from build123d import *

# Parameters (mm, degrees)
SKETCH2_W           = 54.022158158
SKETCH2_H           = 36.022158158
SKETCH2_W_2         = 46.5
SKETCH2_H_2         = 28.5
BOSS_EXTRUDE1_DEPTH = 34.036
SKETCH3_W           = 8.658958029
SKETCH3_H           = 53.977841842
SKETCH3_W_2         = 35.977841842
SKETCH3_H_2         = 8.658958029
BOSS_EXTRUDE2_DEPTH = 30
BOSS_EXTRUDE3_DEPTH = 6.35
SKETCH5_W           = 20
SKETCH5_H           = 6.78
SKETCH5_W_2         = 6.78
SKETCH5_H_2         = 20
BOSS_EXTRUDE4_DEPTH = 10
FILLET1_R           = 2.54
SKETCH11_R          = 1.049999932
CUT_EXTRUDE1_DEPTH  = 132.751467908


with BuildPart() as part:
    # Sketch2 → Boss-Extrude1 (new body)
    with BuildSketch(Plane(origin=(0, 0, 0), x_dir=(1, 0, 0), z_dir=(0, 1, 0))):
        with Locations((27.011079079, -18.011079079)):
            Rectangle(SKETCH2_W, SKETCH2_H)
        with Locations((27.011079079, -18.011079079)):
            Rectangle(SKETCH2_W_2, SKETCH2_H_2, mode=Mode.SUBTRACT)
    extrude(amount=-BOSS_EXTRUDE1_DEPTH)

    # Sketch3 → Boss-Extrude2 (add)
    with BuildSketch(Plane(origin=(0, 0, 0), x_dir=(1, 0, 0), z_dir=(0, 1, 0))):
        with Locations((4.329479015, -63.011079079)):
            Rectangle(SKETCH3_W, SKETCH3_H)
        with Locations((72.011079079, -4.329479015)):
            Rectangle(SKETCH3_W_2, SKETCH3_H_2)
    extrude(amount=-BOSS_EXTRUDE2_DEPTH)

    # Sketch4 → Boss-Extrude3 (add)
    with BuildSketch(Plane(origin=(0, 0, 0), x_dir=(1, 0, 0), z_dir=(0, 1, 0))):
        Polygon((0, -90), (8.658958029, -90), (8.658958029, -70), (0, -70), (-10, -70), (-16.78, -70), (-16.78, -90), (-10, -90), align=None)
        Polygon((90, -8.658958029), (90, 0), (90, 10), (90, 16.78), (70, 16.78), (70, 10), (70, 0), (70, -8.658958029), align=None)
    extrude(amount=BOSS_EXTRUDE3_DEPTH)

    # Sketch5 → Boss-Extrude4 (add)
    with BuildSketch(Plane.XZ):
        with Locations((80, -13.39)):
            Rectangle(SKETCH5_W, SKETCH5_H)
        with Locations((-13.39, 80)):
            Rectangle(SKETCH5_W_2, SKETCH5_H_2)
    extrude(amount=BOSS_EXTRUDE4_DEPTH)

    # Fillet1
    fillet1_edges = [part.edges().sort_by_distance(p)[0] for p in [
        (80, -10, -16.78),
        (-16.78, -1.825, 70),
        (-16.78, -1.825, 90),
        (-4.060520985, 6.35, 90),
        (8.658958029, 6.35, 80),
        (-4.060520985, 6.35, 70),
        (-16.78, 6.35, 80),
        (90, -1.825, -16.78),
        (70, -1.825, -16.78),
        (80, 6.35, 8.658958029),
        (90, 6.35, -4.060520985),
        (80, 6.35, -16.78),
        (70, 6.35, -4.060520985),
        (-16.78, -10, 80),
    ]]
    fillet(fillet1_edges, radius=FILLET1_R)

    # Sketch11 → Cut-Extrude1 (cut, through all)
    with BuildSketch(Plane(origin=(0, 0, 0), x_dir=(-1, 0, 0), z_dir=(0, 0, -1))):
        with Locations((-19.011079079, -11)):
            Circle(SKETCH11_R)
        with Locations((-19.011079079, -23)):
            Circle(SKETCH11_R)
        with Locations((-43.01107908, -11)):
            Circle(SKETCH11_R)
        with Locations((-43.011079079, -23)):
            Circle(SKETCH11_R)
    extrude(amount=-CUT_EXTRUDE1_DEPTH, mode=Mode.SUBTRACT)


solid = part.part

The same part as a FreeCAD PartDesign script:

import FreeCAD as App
import Part
import Sketcher
Q = App.Units.Quantity


def edges_at(feature, points):
    """Names of the edges that pass closest to the given points."""
    edges = feature.Shape.Edges
    near = lambda p: min(range(len(edges)), key=lambda i: edges[i].distToShape(Part.Vertex(*p))[0])
    return sorted({f"Edge{near(p) + 1}" for p in points})


def add_polygon(sketch, points):
    """Adds a closed chain of lines whose ends are joined by coincident constraints."""
    first, n = sketch.GeometryCount, len(points)
    for a, b in zip(points, points[1:] + points[:1]):
        sketch.addGeometry(Part.LineSegment(App.Vector(*a, 0), App.Vector(*b, 0)), False)
    for i in range(n):
        sketch.addConstraint(Sketcher.Constraint("Coincident", first + i, 2, first + (i + 1) % n, 1))

doc = App.newDocument("Part")
body = doc.addObject("PartDesign::Body", "Body")

sketch1 = doc.addObject("Sketcher::SketchObject", "Sketch")
body.addObject(sketch1)
sketch1.AttachmentSupport = (doc.XZ_Plane, [""])
sketch1.MapMode = "FlatFace"
add_polygon(sketch1, [(0, 0), (0, 36), (54, 36), (54, 0)])
add_polygon(sketch1, [(50, 32), (4, 32), (4, 4), (50, 4)])
sketch1.addConstraint([
    Sketcher.Constraint("Vertical", 0),
    Sketcher.Constraint("Horizontal", 1),
    Sketcher.Constraint("Vertical", 2),
    Sketcher.Constraint("Horizontal", 3),
    Sketcher.Constraint("Horizontal", 4),
    Sketcher.Constraint("Vertical", 5),
    Sketcher.Constraint("Horizontal", 6),
    Sketcher.Constraint("Vertical", 7),
    Sketcher.Constraint("Coincident", 3, 2, -1, 1),
    Sketcher.Constraint("DistanceX", 4, 2, 4, 1, Q("46.5 mm")),
    Sketcher.Constraint("DistanceY", 5, 2, 5, 1, Q("28.5 mm")),
    Sketcher.Constraint("DistanceX", 1, 1, 1, 2, Q("54.022158 mm")),
    Sketcher.Constraint("DistanceY", 0, 1, 0, 2, Q("36.022158 mm")),
    Sketcher.Constraint("DistanceX", -1, 1, 4, 2, Q("3.761079 mm")),
    Sketcher.Constraint("DistanceY", -1, 1, 4, 2, Q("32.261079 mm")),
])
pad1 = doc.addObject("PartDesign::Pad", "Pad")
body.addObject(pad1)
pad1.Profile = sketch1
pad1.Length = 34.036

sketch2 = doc.addObject("Sketcher::SketchObject", "Sketch001")
body.addObject(sketch2)
sketch2.AttachmentSupport = (doc.XZ_Plane, [""])
sketch2.MapMode = "FlatFace"
add_polygon(sketch2, [(0, 36), (0, 90), (9, 90), (9, 36)])
add_polygon(sketch2, [(54, 0), (54, 9), (90, 9), (90, 0)])
sketch2.addConstraint([
    Sketcher.Constraint("Vertical", 0),
    Sketcher.Constraint("Horizontal", 1),
    Sketcher.Constraint("Vertical", 2),
    Sketcher.Constraint("Horizontal", 3),
    Sketcher.Constraint("Vertical", 4),
    Sketcher.Constraint("Horizontal", 5),
    Sketcher.Constraint("Vertical", 6),
    Sketcher.Constraint("Horizontal", 7),
    Sketcher.Constraint("PointOnObject", 0, 2, -2),
    Sketcher.Constraint("PointOnObject", 6, 2, -1),
    Sketcher.Constraint("Equal", 3, 4),
    Sketcher.Constraint("DistanceY", -1, 1, 0, 2, Q("90 mm")),
    Sketcher.Constraint("DistanceX", -1, 1, 5, 2, Q("90 mm")),
    Sketcher.Constraint("DistanceX", 1, 1, 1, 2, Q("8.658958 mm")),
    Sketcher.Constraint("DistanceX", 5, 1, 5, 2, Q("35.977842 mm")),
    Sketcher.Constraint("DistanceY", 0, 1, 0, 2, Q("53.977842 mm")),
])
pad2 = doc.addObject("PartDesign::Pad", "Pad001")
body.addObject(pad2)
pad2.Profile = sketch2
pad2.Length = 30

sketch3 = doc.addObject("Sketcher::SketchObject", "Sketch002")
body.addObject(sketch3)
sketch3.AttachmentSupport = (doc.XZ_Plane, [""])
sketch3.MapMode = "FlatFace"
add_polygon(sketch3, [(9, 90), (9, 70), (-17, 70), (-17, 90)])
add_polygon(sketch3, [(90, 9), (90, -17), (70, -17), (70, 9)])
sketch3.addConstraint([
    Sketcher.Constraint("Vertical", 0),
    Sketcher.Constraint("Horizontal", 1),
    Sketcher.Constraint("Vertical", 2),
    Sketcher.Constraint("Horizontal", 3),
    Sketcher.Constraint("Vertical", 4),
    Sketcher.Constraint("Horizontal", 5),
    Sketcher.Constraint("Vertical", 6),
    Sketcher.Constraint("Horizontal", 7),
    Sketcher.Constraint("Equal", 7, 0),
    Sketcher.Constraint("Equal", 3, 4),
    Sketcher.Constraint("DistanceX", 5, 2, 5, 1, Q("20 mm")),
    Sketcher.Constraint("DistanceY", -1, 1, 0, 2, Q("70 mm")),
    Sketcher.Constraint("DistanceX", -1, 1, 4, 2, Q("90 mm")),
    Sketcher.Constraint("DistanceX", 1, 2, -1, 1, Q("16.78 mm")),
    Sketcher.Constraint("DistanceY", 4, 2, -1, 1, Q("16.78 mm")),
    Sketcher.Constraint("DistanceX", 1, 2, 1, 1, Q("25.438958 mm")),
])
pad3 = doc.addObject("PartDesign::Pad", "Pad002")
body.addObject(pad3)
pad3.Profile = sketch3
pad3.Length = 6.35
pad3.Reversed = True

sketch4 = doc.addObject("Sketcher::SketchObject", "Sketch003")
body.addObject(sketch4)
sketch4.AttachmentSupport = (doc.XZ_Plane, [""])
sketch4.MapMode = "FlatFace"
add_polygon(sketch4, [(70, -10), (70, -17), (90, -17), (90, -10)])
add_polygon(sketch4, [(-17, 90), (-17, 70), (-10, 70), (-10, 90)])
sketch4.addConstraint([
    Sketcher.Constraint("Vertical", 0),
    Sketcher.Constraint("Horizontal", 1),
    Sketcher.Constraint("Vertical", 2),
    Sketcher.Constraint("Horizontal", 3),
    Sketcher.Constraint("Vertical", 4),
    Sketcher.Constraint("Horizontal", 5),
    Sketcher.Constraint("Vertical", 6),
    Sketcher.Constraint("Horizontal", 7),
    Sketcher.Constraint("Equal", 7, 0),
    Sketcher.Constraint("Equal", 3, 4),
    Sketcher.Constraint("DistanceX", 1, 1, 1, 2, Q("20 mm")),
    Sketcher.Constraint("DistanceX", -1, 1, 0, 2, Q("70 mm")),
    Sketcher.Constraint("DistanceY", 2, 2, -1, 1, Q("10 mm")),
    Sketcher.Constraint("DistanceY", -1, 1, 4, 2, Q("70 mm")),
    Sketcher.Constraint("DistanceX", 5, 2, -1, 1, Q("10 mm")),
    Sketcher.Constraint("DistanceX", 5, 1, 5, 2, Q("6.78 mm")),
])
pad4 = doc.addObject("PartDesign::Pad", "Pad003")
body.addObject(pad4)
pad4.Profile = sketch4
pad4.Length = 10
doc.recompute()

fillet = doc.addObject("PartDesign::Fillet", "Fillet")
body.addObject(fillet)
fillet.Base = (pad4, edges_at(pad4, [
    (80, -10, -16.78),
    (-16.78, -1.825, 70),
    (-16.78, -1.825, 90),
    (-4.061, 6.35, 90),
    (8.659, 6.35, 80),
    (-4.061, 6.35, 70),
    (-16.78, 6.35, 80),
    (90, -1.825, -16.78),
    (70, -1.825, -16.78),
    (80, 6.35, 8.659),
    (90, 6.35, -4.061),
    (80, 6.35, -16.78),
    (70, 6.35, -4.061),
    (-16.78, -10, 80),
]))
fillet.Radius = 2.54

sketch5 = doc.addObject("Sketcher::SketchObject", "Sketch004")
body.addObject(sketch5)
sketch5.AttachmentSupport = (doc.XY_Plane, [""])
sketch5.MapMode = "FlatFace"
sketch5.addGeometry([
    Part.Circle(App.Vector(19, -11, 0), App.Vector(0, 0, 1), 1),
    Part.Circle(App.Vector(19, -23, 0), App.Vector(0, 0, 1), 1),
    Part.Circle(App.Vector(43, -11, 0), App.Vector(0, 0, 1), 1),
    Part.Circle(App.Vector(43, -23, 0), App.Vector(0, 0, 1), 1),
], False)
sketch5.addConstraint([
    Sketcher.Constraint("Equal", 0, 1),
    Sketcher.Constraint("Equal", 1, 2),
    Sketcher.Constraint("Equal", 2, 3),
    Sketcher.Constraint("Horizontal", 0, 3, 2, 3),
    Sketcher.Constraint("Horizontal", 1, 3, 3, 3),
    Sketcher.Constraint("Vertical", 0, 3, 1, 3),
    Sketcher.Constraint("Vertical", 2, 3, 3, 3),
    Sketcher.Constraint("Diameter", 0, Q("2.1 mm")),
    Sketcher.Constraint("DistanceY", 0, 3, -1, 1, Q("11 mm")),
    Sketcher.Constraint("DistanceY", 1, 3, -1, 1, Q("23 mm")),
    Sketcher.Constraint("DistanceX", 0, 3, 2, 3, Q("24 mm")),
    Sketcher.Constraint("DistanceX", -1, 1, 0, 3, Q("19.011079 mm")),
])
pocket1 = doc.addObject("PartDesign::Pocket", "Pocket")
body.addObject(pocket1)
pocket1.Profile = sketch5
pocket1.Type = "ThroughAll"
pocket1.Reversed = True

doc.recompute()
